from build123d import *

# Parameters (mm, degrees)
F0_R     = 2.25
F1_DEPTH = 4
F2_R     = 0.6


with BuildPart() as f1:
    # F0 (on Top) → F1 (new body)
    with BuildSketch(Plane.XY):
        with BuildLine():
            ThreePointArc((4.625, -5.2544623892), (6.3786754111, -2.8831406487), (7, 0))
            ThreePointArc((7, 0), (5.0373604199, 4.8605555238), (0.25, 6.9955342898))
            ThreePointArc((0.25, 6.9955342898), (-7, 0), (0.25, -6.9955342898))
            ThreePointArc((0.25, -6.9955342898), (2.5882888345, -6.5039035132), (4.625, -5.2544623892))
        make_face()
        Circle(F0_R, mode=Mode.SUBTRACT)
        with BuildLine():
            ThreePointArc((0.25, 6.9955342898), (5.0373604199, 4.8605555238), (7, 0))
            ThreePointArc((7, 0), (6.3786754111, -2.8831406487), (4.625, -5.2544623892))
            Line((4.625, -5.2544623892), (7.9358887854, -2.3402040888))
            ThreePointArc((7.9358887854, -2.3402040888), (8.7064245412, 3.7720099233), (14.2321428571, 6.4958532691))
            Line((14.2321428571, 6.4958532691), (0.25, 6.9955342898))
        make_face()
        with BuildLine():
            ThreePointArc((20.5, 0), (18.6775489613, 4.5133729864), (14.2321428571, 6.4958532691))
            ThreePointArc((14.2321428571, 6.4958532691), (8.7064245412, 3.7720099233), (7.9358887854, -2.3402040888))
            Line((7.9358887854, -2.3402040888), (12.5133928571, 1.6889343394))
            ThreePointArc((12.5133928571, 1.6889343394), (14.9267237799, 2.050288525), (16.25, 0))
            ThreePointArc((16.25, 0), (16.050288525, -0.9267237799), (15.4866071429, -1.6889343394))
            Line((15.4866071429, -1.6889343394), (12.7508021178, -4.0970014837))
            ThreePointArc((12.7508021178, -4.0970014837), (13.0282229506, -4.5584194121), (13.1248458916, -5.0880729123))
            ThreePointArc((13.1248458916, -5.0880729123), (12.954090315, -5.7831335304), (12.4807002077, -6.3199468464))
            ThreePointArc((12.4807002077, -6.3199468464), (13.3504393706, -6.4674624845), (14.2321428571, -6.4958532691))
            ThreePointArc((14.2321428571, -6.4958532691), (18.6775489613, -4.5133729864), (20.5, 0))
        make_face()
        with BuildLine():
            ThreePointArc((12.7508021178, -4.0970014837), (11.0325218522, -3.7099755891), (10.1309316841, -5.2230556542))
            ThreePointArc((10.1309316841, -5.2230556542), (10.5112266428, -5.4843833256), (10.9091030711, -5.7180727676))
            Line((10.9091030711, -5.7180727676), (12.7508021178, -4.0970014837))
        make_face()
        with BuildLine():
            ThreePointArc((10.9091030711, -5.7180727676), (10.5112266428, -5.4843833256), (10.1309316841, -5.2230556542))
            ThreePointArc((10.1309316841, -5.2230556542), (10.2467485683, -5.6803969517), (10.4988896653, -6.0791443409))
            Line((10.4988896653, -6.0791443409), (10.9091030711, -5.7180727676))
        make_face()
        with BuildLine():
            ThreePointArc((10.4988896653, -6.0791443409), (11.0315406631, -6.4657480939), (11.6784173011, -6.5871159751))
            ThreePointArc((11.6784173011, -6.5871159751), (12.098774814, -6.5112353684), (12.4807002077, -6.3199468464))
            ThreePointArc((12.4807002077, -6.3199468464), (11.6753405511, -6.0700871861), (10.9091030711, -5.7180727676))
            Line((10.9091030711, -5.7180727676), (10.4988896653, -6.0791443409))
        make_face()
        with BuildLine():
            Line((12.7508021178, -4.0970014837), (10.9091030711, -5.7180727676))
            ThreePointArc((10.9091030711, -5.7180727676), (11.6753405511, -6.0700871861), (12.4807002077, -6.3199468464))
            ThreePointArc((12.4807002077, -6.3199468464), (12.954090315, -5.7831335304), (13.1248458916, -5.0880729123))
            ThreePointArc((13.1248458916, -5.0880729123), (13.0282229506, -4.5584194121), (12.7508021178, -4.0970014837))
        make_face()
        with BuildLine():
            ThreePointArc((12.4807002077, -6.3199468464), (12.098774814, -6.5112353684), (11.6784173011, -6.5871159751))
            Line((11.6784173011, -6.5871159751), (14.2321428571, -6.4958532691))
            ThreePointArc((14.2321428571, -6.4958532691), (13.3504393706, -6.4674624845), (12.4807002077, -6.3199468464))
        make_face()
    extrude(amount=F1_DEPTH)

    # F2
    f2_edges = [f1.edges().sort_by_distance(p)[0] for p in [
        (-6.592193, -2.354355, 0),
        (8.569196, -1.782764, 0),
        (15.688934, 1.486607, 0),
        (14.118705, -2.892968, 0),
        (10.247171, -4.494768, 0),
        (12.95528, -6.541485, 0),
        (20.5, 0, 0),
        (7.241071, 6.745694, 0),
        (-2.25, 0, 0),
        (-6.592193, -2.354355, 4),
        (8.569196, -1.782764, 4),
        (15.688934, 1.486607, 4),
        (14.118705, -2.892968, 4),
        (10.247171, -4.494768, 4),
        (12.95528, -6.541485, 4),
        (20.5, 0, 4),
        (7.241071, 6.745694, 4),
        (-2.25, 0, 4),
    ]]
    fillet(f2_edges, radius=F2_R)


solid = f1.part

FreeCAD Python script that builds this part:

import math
import FreeCAD as App
import Part
import Sketcher
from FreeCAD import Vector
Q = App.Units.Quantity


def edges_at(feature, points):
    """Names of the edges that pass closest to the given points."""
    edges = feature.Shape.Edges
    near = lambda p: min(range(len(edges)), key=lambda i: edges[i].distToShape(Part.Vertex(*p))[0])
    return sorted({f"Edge{near(p) + 1}" for p in points})

doc = App.newDocument("Part")
body = doc.addObject("PartDesign::Body", "Body")

# Sketch on XY plane
sketch1 = body.newObject("Sketcher::SketchObject", "Sketch")
sketch1.AttachmentSupport = (doc.getObject("XY_Plane"), [""])
sketch1.MapMode = "FlatFace"
sketch1.addGeometry([
    Part.ArcOfCircle(Part.Circle(Vector(0, 0, 0), Vector(0, 0, 1), 7), math.radians(88), math.radians(272)),  # 0
    Part.ArcOfCircle(Part.Circle(Vector(0, 0, 0), Vector(0, 0, 1), 7), math.radians(-88), math.radians(-49)),  # 1
    Part.LineSegment(Vector(4.6, -5.3, 0), Vector(7.9, -2.3, 0)),  # 2
    Part.LineSegment(Vector(7.9, -2.3, 0), Vector(12.5, 1.7, 0)),  # 3
    Part.ArcOfCircle(Part.Circle(Vector(14, 0, 0), Vector(0, 0, 1), 2.2), math.radians(0), math.radians(131)),  # 4
    Part.ArcOfCircle(Part.Circle(Vector(14, 0, 0), Vector(0, 0, 1), 2.2), math.radians(-49), math.radians(0)),  # 5
    Part.LineSegment(Vector(15.5, -1.7, 0), Vector(12.8, -4.1, 0)),  # 6
    Part.ArcOfCircle(Part.Circle(Vector(11.6, -5.1, 0), Vector(0, 0, 1), 1.5), math.radians(41), math.radians(185)),  # 7
    Part.ArcOfCircle(Part.Circle(Vector(11.6, -5.1, 0), Vector(0, 0, 1), 1.5), math.radians(-175), math.radians(-139)),  # 8
    Part.ArcOfCircle(Part.Circle(Vector(11.6, -5.1, 0), Vector(0, 0, 1), 1.5), math.radians(-139), math.radians(-88)),  # 9
    Part.LineSegment(Vector(11.7, -6.6, 0), Vector(14.2, -6.5, 0)),  # 10
    Part.ArcOfCircle(Part.Circle(Vector(14, 0, 0), Vector(0, 0, 1), 6.5), math.radians(-88), math.radians(0)),  # 11
    Part.ArcOfCircle(Part.Circle(Vector(14, 0, 0), Vector(0, 0, 1), 6.5), math.radians(0), math.radians(88)),  # 12
    Part.LineSegment(Vector(14.2, 6.5, 0), Vector(0.2, 7, 0)),  # 13
    Part.Circle(Vector(0, 0, 0), Vector(0, 0, 1), 2.2),  # 14
], False)
sketch1.addConstraint([
    Sketcher.Constraint("Tangent", 0, 2, 1, 1),
    Sketcher.Constraint("Tangent", 1, 2, 2, 1),
    Sketcher.Constraint("Coincident", 2, 2, 3, 1),
    Sketcher.Constraint("Tangent", 3, 2, 4, 2),
    Sketcher.Constraint("Tangent", 4, 1, 5, 2),
    Sketcher.Constraint("Tangent", 5, 1, 6, 1),
    Sketcher.Constraint("Coincident", 6, 2, 7, 1),
    Sketcher.Constraint("Tangent", 7, 2, 8, 1),
    Sketcher.Constraint("Tangent", 8, 2, 9, 1),
    Sketcher.Constraint("Tangent", 9, 2, 10, 1),
    Sketcher.Constraint("Tangent", 10, 2, 11, 1),
    Sketcher.Constraint("Tangent", 11, 2, 12, 1),
    Sketcher.Constraint("Tangent", 12, 2, 13, 1),
    Sketcher.Constraint("Tangent", 13, 2, 0, 1),
    Sketcher.Constraint("Coincident", 0, 3, -1, 1),
    Sketcher.Constraint("Coincident", 14, 3, -1, 1),
    Sketcher.Constraint("Coincident", 9, 3, 7, 3),
    Sketcher.Constraint("Coincident", 11, 3, 4, 3),
    Sketcher.Constraint("Equal", 0, 1),
    Sketcher.Constraint("Equal", 4, 5),
    Sketcher.Constraint("Equal", 11, 12),
    Sketcher.Constraint("Equal", 5, 14),
    Sketcher.Constraint("Symmetric", 10, 2, 12, 2, -1),
    Sketcher.Constraint("PointOnObject", 4, 1, -1),
    Sketcher.Constraint("PointOnObject", 11, 2, -1),
    Sketcher.Constraint("Parallel", 2, 3),
    Sketcher.Constraint("Parallel", 3, 6),
    Sketcher.Constraint("Vertical", 0, 2, 13, 2),
    Sketcher.Constraint("Radius", 0, Q("7 mm")),
    Sketcher.Constraint("Diameter", 14, Q("4.5 mm")),
    Sketcher.Constraint("Radius", 7, Q("1.5 mm")),
    Sketcher.Constraint("Radius", 11, Q("6.5 mm")),
    Sketcher.Constraint("DistanceX", -1, 1, 4, 3, Q("14 mm")),
    Sketcher.Constraint("DistanceY", 6, 2, -1, 1, Q("4.097001 mm")),
    Sketcher.Constraint("Distance", 2, Q("4.410769 mm")),
    Sketcher.Constraint("DistanceX", -1, 1, 7, 2, Q("10.130932 mm")),
    Sketcher.Constraint("DistanceX", -1, 1, 8, 2, Q("10.49889 mm")),
])
pad1 = body.newObject("PartDesign::Pad", "Pad")
pad1.Profile = sketch1
pad1.Length = 4
doc.recompute()

fillet = body.newObject("PartDesign::Fillet", "Fillet")
fillet.Base = (pad1, edges_at(pad1, [
    (-7, 0, 0),
    (10.225, -0.326, 0),
    (14.927, 2.05, 0),
    (14.119, -2.893, 0),
    (11.033, -3.71, 0),
    (12.955, -6.541, 0),
    (20.5, 0, 2),
    (7.241, 6.746, 0),
    (-2.25, 0, 0),
    (-7, 0, 4),
    (10.225, -0.326, 4),
    (14.927, 2.05, 4),
    (14.119, -2.893, 4),
    (11.033, -3.71, 4),
    (12.955, -6.541, 4),
    (20.5, 0, 2),
    (7.241, 6.746, 4),
    (-2.25, 0, 4),
]))
fillet.Radius = 0.6

doc.recompute()
